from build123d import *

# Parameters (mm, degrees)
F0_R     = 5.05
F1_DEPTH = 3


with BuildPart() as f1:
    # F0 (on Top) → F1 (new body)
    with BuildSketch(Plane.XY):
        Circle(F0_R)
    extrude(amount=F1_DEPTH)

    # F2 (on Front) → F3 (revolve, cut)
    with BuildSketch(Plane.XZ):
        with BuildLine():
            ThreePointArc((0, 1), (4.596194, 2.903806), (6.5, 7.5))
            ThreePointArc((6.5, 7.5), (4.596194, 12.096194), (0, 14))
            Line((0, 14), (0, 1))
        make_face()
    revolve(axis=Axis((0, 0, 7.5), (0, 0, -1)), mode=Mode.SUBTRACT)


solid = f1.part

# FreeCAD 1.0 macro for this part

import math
import FreeCAD as App
import Part
import Sketcher
from FreeCAD import Vector

doc = App.newDocument("Part")
params = doc.addObject("Spreadsheet::Sheet", "Params")
for row, (alias, value) in enumerate([
    ("sketch1_diameter", "10.1 mm"),
    ("pad1_length", "3 mm"),
    ("sketch2_radius", "6.5 mm"),
    ("groove_angle", "360 deg"),
], start=1):
    params.set(f"A{row}", alias)
    params.set(f"B{row}", "=" + value)
    params.setAlias(f"B{row}", alias)

body = doc.addObject("PartDesign::Body", "Body")

sketch1 = body.newObject("Sketcher::SketchObject", "Sketch")
sketch1.AttachmentSupport = (doc.getObject("XY_Plane"), [""])
sketch1.MapMode = "FlatFace"
sketch1.addGeometry(Part.Circle(Vector(0, 0, 0), Vector(0, 0, 1), 5), False)
sketch1.addConstraint(Sketcher.Constraint("Coincident", 0, 3, -1, 1))
sketch1.addConstraint(Sketcher.Constraint("Diameter", 0, 10.1))
sketch1.setExpression("Constraints[1]", "Params.sketch1_diameter")
pad1 = body.newObject("PartDesign::Pad", "Pad")
pad1.Profile = sketch1
pad1.setExpression("Length", "Params.pad1_length")

sketch2 = body.newObject("Sketcher::SketchObject", "Sketch001")
sketch2.AttachmentSupport = (doc.getObject("XZ_Plane"), [""])
sketch2.MapMode = "FlatFace"
sketch2.addGeometry(Part.ArcOfCircle(Part.Circle(Vector(0, 8, 0), Vector(0, 0, 1), 7), math.radians(-90), math.radians(0)), False)
sketch2.addGeometry(Part.ArcOfCircle(Part.Circle(Vector(0, 7, 0), Vector(0, 0, 1), 7), math.radians(0), math.radians(90)), False)
sketch2.addGeometry(Part.LineSegment(Vector(0, 14, 0), Vector(0, 1, 0)), False)
sketch2.addConstraint(Sketcher.Constraint("Tangent", 0, 2, 1, 1))
sketch2.addConstraint(Sketcher.Constraint("Coincident", 1, 2, 2, 1))
sketch2.addConstraint(Sketcher.Constraint("Coincident", 2, 2, 0, 1))
sketch2.addConstraint(Sketcher.Constraint("Vertical", 2))
sketch2.addConstraint(Sketcher.Constraint("Equal", 0, 1))
sketch2.addConstraint(Sketcher.Constraint("PointOnObject", 0, 3, -2))
sketch2.addConstraint(Sketcher.Constraint("PointOnObject", 1, 2, -2))
sketch2.addConstraint(Sketcher.Constraint("Horizontal", 1, 3, 0, 2))
sketch2.addConstraint(Sketcher.Constraint("Radius", 0, 6.5))
sketch2.addConstraint(Sketcher.Constraint("DistanceY", -1, 1, 1, 2, 14.0))
sketch2.setExpression("Constraints[8]", "Params.sketch2_radius")
groove = body.newObject("PartDesign::Groove", "Groove")
groove.Profile = sketch2
groove.ReferenceAxis = (sketch2, ["V_Axis"])
groove.setExpression("Angle", "Params.groove_angle")

doc.recompute()
